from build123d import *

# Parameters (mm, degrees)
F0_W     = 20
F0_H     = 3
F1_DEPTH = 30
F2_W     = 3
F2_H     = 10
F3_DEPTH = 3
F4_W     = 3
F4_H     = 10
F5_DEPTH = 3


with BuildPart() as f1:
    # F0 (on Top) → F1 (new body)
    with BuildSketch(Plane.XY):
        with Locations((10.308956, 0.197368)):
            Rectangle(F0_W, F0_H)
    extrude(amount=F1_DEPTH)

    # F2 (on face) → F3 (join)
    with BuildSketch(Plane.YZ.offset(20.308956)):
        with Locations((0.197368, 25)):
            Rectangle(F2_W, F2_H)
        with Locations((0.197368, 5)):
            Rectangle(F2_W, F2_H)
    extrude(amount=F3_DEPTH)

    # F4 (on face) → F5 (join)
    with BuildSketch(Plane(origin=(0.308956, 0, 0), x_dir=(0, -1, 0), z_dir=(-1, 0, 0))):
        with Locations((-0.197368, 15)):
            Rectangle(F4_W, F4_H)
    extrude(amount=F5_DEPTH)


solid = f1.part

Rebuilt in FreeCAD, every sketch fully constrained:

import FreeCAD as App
import Part
import Sketcher
Q = App.Units.Quantity

doc = App.newDocument("Part")
params = doc.addObject("Spreadsheet::Sheet", "Params")
for row, (alias, value) in enumerate([
    ("sketch1_width", "20 mm"),
    ("sketch1_height", "3 mm"),
    ("pad1_length", "30 mm"),
    ("sketch2_width", "3 mm"),
    ("sketch2_height", "10 mm"),
    ("pad2_length", "3 mm"),
    ("sketch3_width", "3 mm"),
    ("sketch3_height", "10 mm"),
    ("pad3_length", "3 mm"),
], start=1):
    params.set(f"A{row}", alias)
    params.set(f"B{row}", "=" + value)
    params.setAlias(f"B{row}", alias)

body = doc.addObject("PartDesign::Body", "Body")

# Sketch on XY plane
sketch1 = body.newObject("Sketcher::SketchObject", "Sketch")
sketch1.AttachmentSupport = (doc.getObject("XY_Plane"), [""])
sketch1.MapMode = "FlatFace"
sketch1.addGeometry([
    Part.LineSegment(App.Vector(0.3, 1.7, 0), App.Vector(0.3, -1.3, 0)),
    Part.LineSegment(App.Vector(0.3, -1.3, 0), App.Vector(20.3, -1.3, 0)),
    Part.LineSegment(App.Vector(20.3, -1.3, 0), App.Vector(20.3, 1.7, 0)),
    Part.LineSegment(App.Vector(20.3, 1.7, 0), App.Vector(0.3, 1.7, 0)),
], False)
sketch1.addConstraint([
    Sketcher.Constraint("Coincident", 0, 2, 1, 1),
    Sketcher.Constraint("Coincident", 1, 2, 2, 1),
    Sketcher.Constraint("Coincident", 2, 2, 3, 1),
    Sketcher.Constraint("Coincident", 3, 2, 0, 1),
    Sketcher.Constraint("Vertical", 0),
    Sketcher.Constraint("Horizontal", 1),
    Sketcher.Constraint("Vertical", 2),
    Sketcher.Constraint("Horizontal", 3),
    Sketcher.Constraint("DistanceX", 1, 1, 1, 2, Q("20 mm")),
    Sketcher.Constraint("DistanceY", 0, 2, 0, 1, Q("3 mm")),
    Sketcher.Constraint("DistanceX", -1, 1, 0, 2, Q("0.308956 mm")),
    Sketcher.Constraint("DistanceY", 0, 2, -1, 1, Q("1.302632 mm")),
])
sketch1.setExpression("Constraints[8]", "Params.sketch1_width")
sketch1.setExpression("Constraints[9]", "Params.sketch1_height")
pad1 = body.newObject("PartDesign::Pad", "Pad")
pad1.Profile = sketch1
pad1.setExpression("Length", "Params.pad1_length")

# Sketch on YZ plane
sketch2 = body.newObject("Sketcher::SketchObject", "Sketch001")
sketch2.AttachmentSupport = (doc.getObject("YZ_Plane"), [""])
sketch2.MapMode = "FlatFace"
sketch2.AttachmentOffset = App.Placement(App.Vector(0, 0, 20.308956), App.Rotation())
sketch2.addGeometry([
    Part.LineSegment(App.Vector(-1.3, 30, 0), App.Vector(-1.3, 20, 0)),  # 0
    Part.LineSegment(App.Vector(-1.3, 20, 0), App.Vector(1.7, 20, 0)),  # 1
    Part.LineSegment(App.Vector(1.7, 20, 0), App.Vector(1.7, 30, 0)),  # 2
    Part.LineSegment(App.Vector(1.7, 30, 0), App.Vector(-1.3, 30, 0)),  # 3
    Part.LineSegment(App.Vector(-1.3, 10, 0), App.Vector(-1.3, 0, 0)),  # 4
    Part.LineSegment(App.Vector(-1.3, 0, 0), App.Vector(1.7, 0, 0)),  # 5
    Part.LineSegment(App.Vector(1.7, 0, 0), App.Vector(1.7, 10, 0)),  # 6
    Part.LineSegment(App.Vector(1.7, 10, 0), App.Vector(-1.3, 10, 0)),  # 7
], False)
sketch2.addConstraint([
    Sketcher.Constraint("Coincident", 0, 2, 1, 1),
    Sketcher.Constraint("Coincident", 1, 2, 2, 1),
    Sketcher.Constraint("Coincident", 2, 2, 3, 1),
    Sketcher.Constraint("Coincident", 3, 2, 0, 1),
    Sketcher.Constraint("Coincident", 4, 2, 5, 1),
    Sketcher.Constraint("Coincident", 5, 2, 6, 1),
    Sketcher.Constraint("Coincident", 6, 2, 7, 1),
    Sketcher.Constraint("Coincident", 7, 2, 4, 1),
    Sketcher.Constraint("Vertical", 0),
    Sketcher.Constraint("Horizontal", 1),
    Sketcher.Constraint("Vertical", 2),
    Sketcher.Constraint("Horizontal", 3),
    Sketcher.Constraint("Vertical", 4),
    Sketcher.Constraint("Horizontal", 5),
    Sketcher.Constraint("Vertical", 6),
    Sketcher.Constraint("Horizontal", 7),
    Sketcher.Constraint("PointOnObject", 4, 2, -1),
    Sketcher.Constraint("Vertical", 3, 2, 4, 2),
    Sketcher.Constraint("Vertical", 2, 2, 5, 2),
    Sketcher.Constraint("Equal", 2, 4),
    Sketcher.Constraint("DistanceX", 1, 1, 1, 2, Q("3 mm")),
    Sketcher.Constraint("DistanceY", 0, 2, 0, 1, Q("10 mm")),
    Sketcher.Constraint("DistanceY", -1, 1, 0, 2, Q("20 mm")),
    Sketcher.Constraint("DistanceX", 0, 2, -1, 1, Q("1.302632 mm")),
])
sketch2.setExpression("Constraints[20]", "Params.sketch2_width")
sketch2.setExpression("Constraints[21]", "Params.sketch2_height")
pad2 = body.newObject("PartDesign::Pad", "Pad001")
pad2.Profile = sketch2
pad2.setExpression("Length", "Params.pad2_length")

# Sketch on YZ plane
sketch3 = body.newObject("Sketcher::SketchObject", "Sketch002")
sketch3.AttachmentSupport = (doc.getObject("YZ_Plane"), [""])
sketch3.MapMode = "FlatFace"
sketch3.AttachmentOffset = App.Placement(App.Vector(0, 0, 0.308956), App.Rotation())
sketch3.addGeometry([
    Part.LineSegment(App.Vector(1.7, 20, 0), App.Vector(1.7, 10, 0)),
    Part.LineSegment(App.Vector(1.7, 10, 0), App.Vector(-1.3, 10, 0)),
    Part.LineSegment(App.Vector(-1.3, 10, 0), App.Vector(-1.3, 20, 0)),
    Part.LineSegment(App.Vector(-1.3, 20, 0), App.Vector(1.7, 20, 0)),
], False)
sketch3.addConstraint([
    Sketcher.Constraint("Coincident", 0, 2, 1, 1),
    Sketcher.Constraint("Coincident", 1, 2, 2, 1),
    Sketcher.Constraint("Coincident", 2, 2, 3, 1),
    Sketcher.Constraint("Coincident", 3, 2, 0, 1),
    Sketcher.Constraint("Vertical", 0),
    Sketcher.Constraint("Horizontal", 1),
    Sketcher.Constraint("Vertical", 2),
    Sketcher.Constraint("Horizontal", 3),
    Sketcher.Constraint("DistanceX", 1, 2, 1, 1, Q("3 mm")),
    Sketcher.Constraint("DistanceY", 0, 2, 0, 1, Q("10 mm")),
    Sketcher.Constraint("DistanceY", -1, 1, 0, 2, Q("10 mm")),
    Sketcher.Constraint("DistanceX", -1, 1, 0, 2, Q("1.697368 mm")),
])
sketch3.setExpression("Constraints[8]", "Params.sketch3_width")
sketch3.setExpression("Constraints[9]", "Params.sketch3_height")
pad3 = body.newObject("PartDesign::Pad", "Pad002")
pad3.Profile = sketch3
pad3.setExpression("Length", "Params.pad3_length")
pad3.Reversed = True

doc.recompute()
